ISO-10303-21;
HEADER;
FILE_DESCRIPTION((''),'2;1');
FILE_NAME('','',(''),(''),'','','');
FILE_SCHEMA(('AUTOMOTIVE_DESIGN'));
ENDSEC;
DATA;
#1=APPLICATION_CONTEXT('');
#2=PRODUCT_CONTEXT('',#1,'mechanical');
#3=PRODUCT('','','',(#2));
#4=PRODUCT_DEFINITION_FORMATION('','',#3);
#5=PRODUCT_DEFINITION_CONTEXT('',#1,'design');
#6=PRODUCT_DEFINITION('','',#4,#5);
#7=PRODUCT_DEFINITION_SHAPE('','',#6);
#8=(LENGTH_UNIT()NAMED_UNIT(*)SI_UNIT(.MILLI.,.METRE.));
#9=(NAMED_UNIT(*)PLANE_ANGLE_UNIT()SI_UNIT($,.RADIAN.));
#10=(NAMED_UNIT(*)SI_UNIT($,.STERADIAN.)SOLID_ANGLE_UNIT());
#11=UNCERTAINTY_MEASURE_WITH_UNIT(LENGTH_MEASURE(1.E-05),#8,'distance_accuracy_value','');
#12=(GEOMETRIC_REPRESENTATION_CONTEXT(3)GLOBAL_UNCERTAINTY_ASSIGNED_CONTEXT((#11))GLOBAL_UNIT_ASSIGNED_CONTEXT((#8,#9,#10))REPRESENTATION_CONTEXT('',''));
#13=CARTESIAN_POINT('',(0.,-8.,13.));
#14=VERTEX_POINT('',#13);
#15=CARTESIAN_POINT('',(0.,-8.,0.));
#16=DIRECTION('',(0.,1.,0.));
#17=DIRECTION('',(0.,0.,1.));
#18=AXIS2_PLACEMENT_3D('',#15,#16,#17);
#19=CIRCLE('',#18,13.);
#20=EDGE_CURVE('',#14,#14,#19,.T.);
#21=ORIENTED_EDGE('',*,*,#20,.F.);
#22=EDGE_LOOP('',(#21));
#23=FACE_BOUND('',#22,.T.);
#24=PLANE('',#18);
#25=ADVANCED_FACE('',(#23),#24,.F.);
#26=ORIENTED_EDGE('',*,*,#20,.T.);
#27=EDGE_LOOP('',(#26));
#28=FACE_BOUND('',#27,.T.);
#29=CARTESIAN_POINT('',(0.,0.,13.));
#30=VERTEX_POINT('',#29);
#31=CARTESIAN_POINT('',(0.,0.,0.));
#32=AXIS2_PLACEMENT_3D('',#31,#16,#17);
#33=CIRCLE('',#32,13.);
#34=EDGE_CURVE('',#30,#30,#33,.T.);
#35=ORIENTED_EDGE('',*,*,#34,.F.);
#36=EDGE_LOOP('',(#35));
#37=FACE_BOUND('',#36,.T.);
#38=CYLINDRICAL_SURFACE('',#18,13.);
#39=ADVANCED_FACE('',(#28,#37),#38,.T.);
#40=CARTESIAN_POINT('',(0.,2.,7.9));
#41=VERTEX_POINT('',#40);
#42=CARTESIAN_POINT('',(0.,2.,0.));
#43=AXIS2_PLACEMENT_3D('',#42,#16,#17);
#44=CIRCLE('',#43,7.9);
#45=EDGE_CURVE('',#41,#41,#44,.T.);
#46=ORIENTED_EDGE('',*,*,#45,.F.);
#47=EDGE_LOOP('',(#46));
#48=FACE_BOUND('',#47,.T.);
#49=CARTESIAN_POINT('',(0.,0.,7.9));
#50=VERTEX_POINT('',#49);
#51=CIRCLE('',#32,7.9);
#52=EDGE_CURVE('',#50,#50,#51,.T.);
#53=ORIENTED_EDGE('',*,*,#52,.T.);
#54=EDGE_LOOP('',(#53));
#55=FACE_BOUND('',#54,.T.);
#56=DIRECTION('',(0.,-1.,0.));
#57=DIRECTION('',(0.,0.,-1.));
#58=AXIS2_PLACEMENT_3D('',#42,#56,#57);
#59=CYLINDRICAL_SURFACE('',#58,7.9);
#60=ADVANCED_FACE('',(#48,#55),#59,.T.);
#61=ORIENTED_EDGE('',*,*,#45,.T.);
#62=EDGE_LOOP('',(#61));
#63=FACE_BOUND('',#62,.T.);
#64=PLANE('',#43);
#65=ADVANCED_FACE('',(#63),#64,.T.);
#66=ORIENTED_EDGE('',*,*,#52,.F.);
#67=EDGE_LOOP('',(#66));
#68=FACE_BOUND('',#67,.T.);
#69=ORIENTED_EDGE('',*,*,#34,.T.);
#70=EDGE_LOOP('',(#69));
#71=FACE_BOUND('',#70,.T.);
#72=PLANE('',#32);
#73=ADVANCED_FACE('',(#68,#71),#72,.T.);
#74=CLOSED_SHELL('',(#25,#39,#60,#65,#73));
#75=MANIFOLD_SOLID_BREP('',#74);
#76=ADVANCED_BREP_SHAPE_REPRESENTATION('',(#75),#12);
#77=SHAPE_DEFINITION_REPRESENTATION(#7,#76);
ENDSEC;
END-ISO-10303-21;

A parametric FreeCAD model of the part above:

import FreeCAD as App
import Part
import Sketcher

V = App.Vector
Q = App.Units.Quantity

doc = App.newDocument("Part")
params = doc.addObject("Spreadsheet::Sheet", "Params")
for row, (alias, value) in enumerate([
    ("sketch1_diameter", "15.8 mm"),
    ("pad1_length", "2 mm"),
    ("sketch2_diameter", "26 mm"),
    ("pad2_length", "8 mm"),
], start=1):
    params.set(f"A{row}", alias)
    params.set(f"B{row}", "=" + value)
    params.setAlias(f"B{row}", alias)

body = doc.addObject("PartDesign::Body", "Body")

# Sketch on XZ plane
sketch1 = body.newObject("Sketcher::SketchObject", "Sketch")
sketch1.AttachmentSupport = (doc.getObject("XZ_Plane"), [""])
sketch1.MapMode = "FlatFace"
sketch1.addGeometry(Part.Circle(V(0, 0, 0), V(0, 0, 1), 8), False)
sketch1.addConstraint(Sketcher.Constraint("Coincident", 0, 3, -1, 1))
sketch1.addConstraint(Sketcher.Constraint("Diameter", 0, Q("15.8 mm")))
sketch1.setExpression("Constraints[1]", "Params.sketch1_diameter")
pad1 = body.newObject("PartDesign::Pad", "Pad")
pad1.Profile = sketch1
pad1.setExpression("Length", "Params.pad1_length")
pad1.Reversed = True

# Sketch on XZ plane
sketch2 = body.newObject("Sketcher::SketchObject", "Sketch001")
sketch2.AttachmentSupport = (doc.getObject("XZ_Plane"), [""])
sketch2.MapMode = "FlatFace"
sketch2.addGeometry(Part.Circle(V(0, 0, 0), V(0, 0, 1), 13), False)
sketch2.addConstraint(Sketcher.Constraint("Coincident", 0, 3, -1, 1))
sketch2.addConstraint(Sketcher.Constraint("Diameter", 0, Q("26 mm")))
sketch2.setExpression("Constraints[1]", "Params.sketch2_diameter")
pad2 = body.newObject("PartDesign::Pad", "Pad001")
pad2.Profile = sketch2
pad2.setExpression("Length", "Params.pad2_length")

doc.recompute()
